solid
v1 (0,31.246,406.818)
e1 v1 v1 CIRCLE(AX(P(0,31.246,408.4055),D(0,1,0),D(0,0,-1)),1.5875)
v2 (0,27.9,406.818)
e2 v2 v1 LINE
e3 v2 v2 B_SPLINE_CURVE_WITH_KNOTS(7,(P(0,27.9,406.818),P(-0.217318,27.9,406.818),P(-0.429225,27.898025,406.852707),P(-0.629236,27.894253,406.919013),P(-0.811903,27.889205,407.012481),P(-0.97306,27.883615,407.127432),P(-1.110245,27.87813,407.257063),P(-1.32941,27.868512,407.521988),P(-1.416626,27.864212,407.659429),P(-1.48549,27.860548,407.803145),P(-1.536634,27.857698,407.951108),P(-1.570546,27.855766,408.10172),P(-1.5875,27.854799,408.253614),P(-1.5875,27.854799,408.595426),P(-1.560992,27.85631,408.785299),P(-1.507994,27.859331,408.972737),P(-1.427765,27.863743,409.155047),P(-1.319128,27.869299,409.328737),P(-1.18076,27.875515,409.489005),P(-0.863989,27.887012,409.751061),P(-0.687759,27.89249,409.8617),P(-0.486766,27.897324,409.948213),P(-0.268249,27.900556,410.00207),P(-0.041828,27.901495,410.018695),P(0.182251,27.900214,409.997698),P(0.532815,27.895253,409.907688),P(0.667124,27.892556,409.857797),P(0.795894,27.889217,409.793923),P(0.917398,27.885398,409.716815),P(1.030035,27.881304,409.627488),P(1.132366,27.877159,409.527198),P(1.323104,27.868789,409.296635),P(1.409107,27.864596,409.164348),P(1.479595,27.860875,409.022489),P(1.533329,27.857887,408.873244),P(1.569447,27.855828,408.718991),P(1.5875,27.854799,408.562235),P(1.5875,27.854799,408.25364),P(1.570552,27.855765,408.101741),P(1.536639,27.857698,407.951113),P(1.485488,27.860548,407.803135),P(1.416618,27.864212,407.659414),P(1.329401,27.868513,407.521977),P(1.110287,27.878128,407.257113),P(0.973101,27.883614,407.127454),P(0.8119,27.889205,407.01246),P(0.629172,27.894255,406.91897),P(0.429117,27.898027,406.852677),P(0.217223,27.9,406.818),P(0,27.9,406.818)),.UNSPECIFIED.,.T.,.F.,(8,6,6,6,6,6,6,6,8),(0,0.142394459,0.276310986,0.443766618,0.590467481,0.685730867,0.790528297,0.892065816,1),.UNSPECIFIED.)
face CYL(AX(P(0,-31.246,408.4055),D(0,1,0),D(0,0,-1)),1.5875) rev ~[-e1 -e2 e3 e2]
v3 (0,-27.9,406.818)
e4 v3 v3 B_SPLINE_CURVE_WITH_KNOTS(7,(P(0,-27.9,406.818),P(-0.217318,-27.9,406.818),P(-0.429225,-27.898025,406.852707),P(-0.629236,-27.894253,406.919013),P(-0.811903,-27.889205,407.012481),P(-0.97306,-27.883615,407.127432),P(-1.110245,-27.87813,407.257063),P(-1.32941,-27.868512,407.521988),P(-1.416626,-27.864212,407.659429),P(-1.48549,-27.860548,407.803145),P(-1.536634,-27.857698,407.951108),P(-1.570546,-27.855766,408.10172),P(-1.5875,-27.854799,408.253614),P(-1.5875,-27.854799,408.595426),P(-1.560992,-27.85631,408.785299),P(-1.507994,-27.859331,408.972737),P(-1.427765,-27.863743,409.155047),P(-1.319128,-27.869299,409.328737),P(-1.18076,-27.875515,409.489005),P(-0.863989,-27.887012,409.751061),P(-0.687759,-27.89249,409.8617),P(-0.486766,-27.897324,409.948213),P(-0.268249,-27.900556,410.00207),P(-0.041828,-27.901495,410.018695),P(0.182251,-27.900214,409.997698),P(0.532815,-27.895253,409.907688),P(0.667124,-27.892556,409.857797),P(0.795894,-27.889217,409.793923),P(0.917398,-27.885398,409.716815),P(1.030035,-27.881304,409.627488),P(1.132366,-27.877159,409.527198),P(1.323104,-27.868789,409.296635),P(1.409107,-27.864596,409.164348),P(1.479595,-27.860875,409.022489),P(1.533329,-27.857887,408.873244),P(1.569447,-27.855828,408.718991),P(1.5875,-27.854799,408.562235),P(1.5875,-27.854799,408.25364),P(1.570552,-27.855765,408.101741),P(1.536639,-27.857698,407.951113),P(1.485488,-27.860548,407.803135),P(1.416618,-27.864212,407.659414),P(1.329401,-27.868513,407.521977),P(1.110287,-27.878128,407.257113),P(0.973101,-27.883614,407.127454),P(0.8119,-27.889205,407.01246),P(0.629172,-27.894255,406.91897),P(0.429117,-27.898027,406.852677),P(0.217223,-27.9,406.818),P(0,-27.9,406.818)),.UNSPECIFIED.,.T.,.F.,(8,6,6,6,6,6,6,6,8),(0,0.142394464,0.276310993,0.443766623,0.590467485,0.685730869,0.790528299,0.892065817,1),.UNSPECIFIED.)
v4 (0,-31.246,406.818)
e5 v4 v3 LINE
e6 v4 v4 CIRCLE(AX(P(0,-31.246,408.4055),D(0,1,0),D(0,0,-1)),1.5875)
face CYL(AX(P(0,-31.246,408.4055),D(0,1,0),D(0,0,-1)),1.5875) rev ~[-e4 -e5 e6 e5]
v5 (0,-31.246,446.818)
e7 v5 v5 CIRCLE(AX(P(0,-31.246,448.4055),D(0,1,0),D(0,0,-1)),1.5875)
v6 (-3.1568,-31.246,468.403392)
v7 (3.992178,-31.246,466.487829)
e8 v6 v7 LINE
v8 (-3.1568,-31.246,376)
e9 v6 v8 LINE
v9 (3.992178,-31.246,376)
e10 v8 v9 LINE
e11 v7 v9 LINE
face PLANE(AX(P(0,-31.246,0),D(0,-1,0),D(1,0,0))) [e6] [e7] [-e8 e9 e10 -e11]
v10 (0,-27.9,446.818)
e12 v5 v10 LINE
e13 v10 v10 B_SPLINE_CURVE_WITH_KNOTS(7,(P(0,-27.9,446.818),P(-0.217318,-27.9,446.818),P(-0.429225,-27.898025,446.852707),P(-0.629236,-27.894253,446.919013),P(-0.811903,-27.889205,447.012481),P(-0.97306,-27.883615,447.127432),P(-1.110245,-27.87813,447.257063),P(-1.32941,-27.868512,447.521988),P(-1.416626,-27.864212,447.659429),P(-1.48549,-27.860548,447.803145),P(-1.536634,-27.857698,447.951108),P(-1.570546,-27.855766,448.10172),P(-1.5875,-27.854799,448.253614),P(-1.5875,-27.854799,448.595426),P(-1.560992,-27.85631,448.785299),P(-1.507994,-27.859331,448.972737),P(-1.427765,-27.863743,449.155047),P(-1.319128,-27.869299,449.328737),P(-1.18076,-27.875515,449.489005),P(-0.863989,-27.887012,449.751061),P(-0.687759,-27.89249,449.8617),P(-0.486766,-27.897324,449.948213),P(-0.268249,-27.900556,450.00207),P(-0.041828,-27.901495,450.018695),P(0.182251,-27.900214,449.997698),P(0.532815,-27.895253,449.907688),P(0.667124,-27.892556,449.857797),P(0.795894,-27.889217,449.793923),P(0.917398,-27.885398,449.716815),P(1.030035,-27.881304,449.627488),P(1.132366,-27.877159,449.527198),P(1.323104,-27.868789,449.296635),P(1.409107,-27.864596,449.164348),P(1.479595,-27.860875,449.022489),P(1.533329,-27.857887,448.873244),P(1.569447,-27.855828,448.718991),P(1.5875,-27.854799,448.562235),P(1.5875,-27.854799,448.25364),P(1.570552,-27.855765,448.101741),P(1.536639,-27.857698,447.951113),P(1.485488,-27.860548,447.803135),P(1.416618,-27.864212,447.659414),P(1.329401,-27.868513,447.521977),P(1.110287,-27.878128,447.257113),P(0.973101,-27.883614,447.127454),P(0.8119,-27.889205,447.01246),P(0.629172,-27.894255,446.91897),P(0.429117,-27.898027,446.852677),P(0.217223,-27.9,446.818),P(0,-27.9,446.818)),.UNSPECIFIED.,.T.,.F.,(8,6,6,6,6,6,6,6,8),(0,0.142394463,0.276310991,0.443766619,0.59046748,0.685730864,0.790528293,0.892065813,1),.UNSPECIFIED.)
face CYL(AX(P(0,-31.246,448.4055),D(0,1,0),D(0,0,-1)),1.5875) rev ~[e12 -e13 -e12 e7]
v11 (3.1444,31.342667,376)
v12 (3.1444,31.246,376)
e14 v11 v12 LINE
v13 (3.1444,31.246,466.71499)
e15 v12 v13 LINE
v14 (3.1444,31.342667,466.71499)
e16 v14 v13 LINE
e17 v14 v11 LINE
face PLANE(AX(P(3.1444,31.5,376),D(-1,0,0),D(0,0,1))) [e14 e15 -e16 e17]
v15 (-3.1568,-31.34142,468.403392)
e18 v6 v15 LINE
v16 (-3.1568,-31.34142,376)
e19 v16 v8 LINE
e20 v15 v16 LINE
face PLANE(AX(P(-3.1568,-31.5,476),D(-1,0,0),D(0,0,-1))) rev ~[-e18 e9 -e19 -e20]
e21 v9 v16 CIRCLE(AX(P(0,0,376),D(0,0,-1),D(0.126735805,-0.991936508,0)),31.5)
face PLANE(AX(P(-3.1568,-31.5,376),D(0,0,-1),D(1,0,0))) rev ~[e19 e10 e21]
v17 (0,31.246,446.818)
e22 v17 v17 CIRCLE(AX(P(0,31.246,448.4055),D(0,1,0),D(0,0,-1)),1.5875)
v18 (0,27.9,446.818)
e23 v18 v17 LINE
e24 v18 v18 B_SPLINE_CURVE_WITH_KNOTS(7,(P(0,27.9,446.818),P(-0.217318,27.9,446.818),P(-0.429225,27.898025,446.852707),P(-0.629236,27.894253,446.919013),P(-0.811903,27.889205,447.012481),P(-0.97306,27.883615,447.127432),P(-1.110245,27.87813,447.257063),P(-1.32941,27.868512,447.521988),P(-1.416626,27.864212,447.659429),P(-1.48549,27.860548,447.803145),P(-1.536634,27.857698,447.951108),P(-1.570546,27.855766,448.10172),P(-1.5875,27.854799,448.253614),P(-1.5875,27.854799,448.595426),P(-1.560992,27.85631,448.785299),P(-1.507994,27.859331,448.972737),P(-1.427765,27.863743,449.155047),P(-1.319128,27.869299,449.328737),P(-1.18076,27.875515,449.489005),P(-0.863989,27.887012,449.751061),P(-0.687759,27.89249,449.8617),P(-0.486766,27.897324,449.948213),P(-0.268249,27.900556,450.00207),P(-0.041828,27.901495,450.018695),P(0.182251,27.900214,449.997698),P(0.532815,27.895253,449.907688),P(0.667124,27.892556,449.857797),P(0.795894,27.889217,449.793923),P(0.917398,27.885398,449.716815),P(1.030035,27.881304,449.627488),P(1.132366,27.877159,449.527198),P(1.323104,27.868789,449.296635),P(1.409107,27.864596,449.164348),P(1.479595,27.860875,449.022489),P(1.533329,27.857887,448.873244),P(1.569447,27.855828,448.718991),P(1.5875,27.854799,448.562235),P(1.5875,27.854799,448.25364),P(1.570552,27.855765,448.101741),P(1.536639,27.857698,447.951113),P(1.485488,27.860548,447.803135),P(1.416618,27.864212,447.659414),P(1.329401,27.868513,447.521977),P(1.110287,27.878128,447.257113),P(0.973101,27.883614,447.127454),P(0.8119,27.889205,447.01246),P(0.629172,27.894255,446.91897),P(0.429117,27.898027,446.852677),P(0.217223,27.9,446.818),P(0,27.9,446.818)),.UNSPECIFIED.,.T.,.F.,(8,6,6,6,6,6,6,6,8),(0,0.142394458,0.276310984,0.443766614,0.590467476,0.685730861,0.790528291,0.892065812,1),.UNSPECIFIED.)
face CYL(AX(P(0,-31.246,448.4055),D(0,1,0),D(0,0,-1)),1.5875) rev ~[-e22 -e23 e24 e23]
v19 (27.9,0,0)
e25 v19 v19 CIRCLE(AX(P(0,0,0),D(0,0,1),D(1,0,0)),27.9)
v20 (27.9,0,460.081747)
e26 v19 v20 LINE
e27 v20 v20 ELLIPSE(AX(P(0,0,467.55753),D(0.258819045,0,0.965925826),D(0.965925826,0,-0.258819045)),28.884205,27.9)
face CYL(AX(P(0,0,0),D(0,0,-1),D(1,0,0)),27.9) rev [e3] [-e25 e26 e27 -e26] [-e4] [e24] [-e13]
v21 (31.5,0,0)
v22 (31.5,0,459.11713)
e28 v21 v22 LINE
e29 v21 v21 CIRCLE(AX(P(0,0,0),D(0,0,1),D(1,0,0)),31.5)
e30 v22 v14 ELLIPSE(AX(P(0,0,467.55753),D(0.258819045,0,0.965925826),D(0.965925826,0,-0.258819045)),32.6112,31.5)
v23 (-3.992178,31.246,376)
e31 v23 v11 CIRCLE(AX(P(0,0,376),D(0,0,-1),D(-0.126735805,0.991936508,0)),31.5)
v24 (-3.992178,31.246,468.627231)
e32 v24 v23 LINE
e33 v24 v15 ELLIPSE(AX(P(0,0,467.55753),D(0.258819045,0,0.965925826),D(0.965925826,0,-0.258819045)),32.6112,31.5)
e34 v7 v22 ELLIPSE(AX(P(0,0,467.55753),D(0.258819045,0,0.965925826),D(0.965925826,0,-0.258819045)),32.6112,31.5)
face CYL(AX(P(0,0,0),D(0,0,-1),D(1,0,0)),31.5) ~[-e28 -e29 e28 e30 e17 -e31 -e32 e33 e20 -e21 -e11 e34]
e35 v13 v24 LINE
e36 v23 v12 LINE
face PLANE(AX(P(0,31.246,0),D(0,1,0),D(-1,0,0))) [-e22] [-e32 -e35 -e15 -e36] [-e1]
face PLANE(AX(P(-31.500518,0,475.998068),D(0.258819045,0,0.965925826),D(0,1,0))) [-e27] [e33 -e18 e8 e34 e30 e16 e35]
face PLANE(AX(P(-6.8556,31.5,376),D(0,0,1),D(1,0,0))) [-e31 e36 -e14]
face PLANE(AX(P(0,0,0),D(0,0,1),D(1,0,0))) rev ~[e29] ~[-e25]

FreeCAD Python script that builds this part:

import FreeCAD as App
import Part
import Sketcher

V = App.Vector
Q = App.Units.Quantity

doc = App.newDocument("Part")
params = doc.addObject("Spreadsheet::Sheet", "Params")
for row, (alias, value) in enumerate([
    ("pad1_length", "476 mm"),
    ("sketch2_height", "4 in"),
    ("pocket1_length", "1 in"),
    ("sketch3_height", "3.937 in"),
    ("pocket2_length", "0.01 in"),
    ("sketch4_height", "3.937 in"),
    ("pocket3_length", "0.01 in"),
    ("sketch5_diameter", "0.125 in"),
    ("hole_diameter", "0.125 in"),
], start=1):
    params.set(f"A{row}", alias)
    params.set(f"B{row}", "=" + value)
    params.setAlias(f"B{row}", alias)

body = doc.addObject("PartDesign::Body", "Body")

# Sketch on XY plane
sketch1 = body.newObject("Sketcher::SketchObject", "Sketch")
sketch1.AttachmentSupport = (doc.getObject("XY_Plane"), [""])
sketch1.MapMode = "FlatFace"
sketch1.addGeometry(Part.Circle(V(0, 0, 0), V(0, 0, 1), 32), False)
sketch1.addGeometry(Part.Circle(V(0, 0, 0), V(0, 0, 1), 28), False)
sketch1.addConstraint(Sketcher.Constraint("Coincident", 0, 3, -1, 1))
sketch1.addConstraint(Sketcher.Constraint("Coincident", 1, 3, -1, 1))
sketch1.addConstraint(Sketcher.Constraint("Diameter", 0, 63.0))
sketch1.addConstraint(Sketcher.Constraint("Diameter", 1, 55.8))
pad1 = body.newObject("PartDesign::Pad", "Pad")
pad1.Profile = sketch1
pad1.setExpression("Length", "Params.pad1_length")

# Sketch on an angled plane
sketch2 = body.newObject("Sketcher::SketchObject", "Sketch001")
sketch2.Placement = App.Placement(V(-31.5, 0, 476), App.Rotation(V(0, 1, 0), V(-0.965925826, 0, 0.258819045), V(0.258819045, 0, 0.965925826), "ZXY"))
sketch2.addGeometry(Part.LineSegment(V(-32, 7, 0), V(-32, -95, 0)), False)
sketch2.addGeometry(Part.LineSegment(V(-32, -95, 0), V(64, -95, 0)), False)
sketch2.addGeometry(Part.LineSegment(V(64, -95, 0), V(64, 7, 0)), False)
sketch2.addGeometry(Part.LineSegment(V(64, 7, 0), V(-32, 7, 0)), False)
sketch2.addConstraint(Sketcher.Constraint("Coincident", 0, 2, 1, 1))
sketch2.addConstraint(Sketcher.Constraint("Coincident", 1, 2, 2, 1))
sketch2.addConstraint(Sketcher.Constraint("Coincident", 2, 2, 3, 1))
sketch2.addConstraint(Sketcher.Constraint("Coincident", 3, 2, 0, 1))
sketch2.addConstraint(Sketcher.Constraint("Vertical", 0))
sketch2.addConstraint(Sketcher.Constraint("Horizontal", 1))
sketch2.addConstraint(Sketcher.Constraint("Vertical", 2))
sketch2.addConstraint(Sketcher.Constraint("Horizontal", 3))
sketch2.addConstraint(Sketcher.Constraint("DistanceY", 0, 2, 0, 1, Q("4 in")))
sketch2.addConstraint(Sketcher.Constraint("DistanceX", 1, 1, 1, 2, Q("3.7811 in")))
sketch2.addConstraint(Sketcher.Constraint("DistanceY", 0, 2, -1, 1, Q("3.7381 in")))
sketch2.addConstraint(Sketcher.Constraint("DistanceX", 0, 2, -1, 1, 31.6137))
sketch2.setExpression("Constraints[8]", "Params.sketch2_height")
pocket1 = body.newObject("PartDesign::Pocket", "Pocket")
pocket1.Profile = sketch2
pocket1.setExpression("Length", "Params.pocket1_length")
pocket1.Reversed = True

# Sketch on XZ plane
sketch3 = body.newObject("Sketcher::SketchObject", "Sketch002")
sketch3.AttachmentSupport = (doc.getObject("XZ_Plane"), [""])
sketch3.MapMode = "FlatFace"
sketch3.AttachmentOffset = App.Placement(V(0, 0, -31.5), App.Rotation())
sketch3.addGeometry(Part.LineSegment(V(-7, 476, 0), V(3, 476, 0)), False)
sketch3.addGeometry(Part.LineSegment(V(3, 476, 0), V(3, 376, 0)), False)
sketch3.addGeometry(Part.LineSegment(V(3, 376, 0), V(-7, 376, 0)), False)
sketch3.addGeometry(Part.LineSegment(V(-7, 376, 0), V(-7, 476, 0)), False)
sketch3.addConstraint(Sketcher.Constraint("Coincident", 0, 2, 1, 1))
sketch3.addConstraint(Sketcher.Constraint("Coincident", 1, 2, 2, 1))
sketch3.addConstraint(Sketcher.Constraint("Coincident", 2, 2, 3, 1))
sketch3.addConstraint(Sketcher.Constraint("Coincident", 3, 2, 0, 1))
sketch3.addConstraint(Sketcher.Constraint("Horizontal", 0))
sketch3.addConstraint(Sketcher.Constraint("Vertical", 1))
sketch3.addConstraint(Sketcher.Constraint("Horizontal", 2))
sketch3.addConstraint(Sketcher.Constraint("Vertical", 3))
sketch3.addConstraint(Sketcher.Constraint("DistanceY", 1, 2, 1, 1, Q("3.937 in")))
sketch3.addConstraint(Sketcher.Constraint("DistanceX", 0, 1, 0, 2, Q("0.3937 in")))
sketch3.addConstraint(Sketcher.Constraint("DistanceY", -1, 1, 1, 2, 376.0))
sketch3.addConstraint(Sketcher.Constraint("DistanceX", -1, 1, 0, 2, Q("0.1238 in")))
sketch3.setExpression("Constraints[8]", "Params.sketch3_height")
pocket2 = body.newObject("PartDesign::Pocket", "Pocket001")
pocket2.Profile = sketch3
pocket2.setExpression("Length", "Params.pocket2_length")
pocket2.Reversed = True

# Sketch on XZ plane
sketch4 = body.newObject("Sketcher::SketchObject", "Sketch003")
sketch4.AttachmentSupport = (doc.getObject("XZ_Plane"), [""])
sketch4.MapMode = "FlatFace"
sketch4.AttachmentOffset = App.Placement(V(0, 0, 31.5), App.Rotation())
sketch4.addGeometry(Part.LineSegment(V(-3, 476, 0), V(-3, 376, 0)), False)
sketch4.addGeometry(Part.LineSegment(V(-3, 376, 0), V(7, 376, 0)), False)
sketch4.addGeometry(Part.LineSegment(V(7, 376, 0), V(7, 476, 0)), False)
sketch4.addGeometry(Part.LineSegment(V(7, 476, 0), V(-3, 476, 0)), False)
sketch4.addConstraint(Sketcher.Constraint("Coincident", 0, 2, 1, 1))
sketch4.addConstraint(Sketcher.Constraint("Coincident", 1, 2, 2, 1))
sketch4.addConstraint(Sketcher.Constraint("Coincident", 2, 2, 3, 1))
sketch4.addConstraint(Sketcher.Constraint("Coincident", 3, 2, 0, 1))
sketch4.addConstraint(Sketcher.Constraint("Vertical", 0))
sketch4.addConstraint(Sketcher.Constraint("Horizontal", 1))
sketch4.addConstraint(Sketcher.Constraint("Vertical", 2))
sketch4.addConstraint(Sketcher.Constraint("Horizontal", 3))
sketch4.addConstraint(Sketcher.Constraint("DistanceY", 0, 2, 0, 1, Q("3.937 in")))
sketch4.addConstraint(Sketcher.Constraint("DistanceX", 1, 1, 1, 2, Q("0.3937 in")))
sketch4.addConstraint(Sketcher.Constraint("DistanceY", -1, 1, 0, 2, 376.0))
sketch4.addConstraint(Sketcher.Constraint("DistanceX", 0, 2, -1, 1, 3.1568))
sketch4.setExpression("Constraints[8]", "Params.sketch4_height")
pocket3 = body.newObject("PartDesign::Pocket", "Pocket002")
pocket3.Profile = sketch4
pocket3.setExpression("Length", "Params.pocket3_length")

# Sketch on XZ plane
sketch5 = body.newObject("Sketcher::SketchObject", "Sketch004")
sketch5.AttachmentSupport = (doc.getObject("XZ_Plane"), [""])
sketch5.MapMode = "FlatFace"
sketch5.AttachmentOffset = App.Placement(V(0, 0, 31.246), App.Rotation())
sketch5.addGeometry(Part.Circle(V(0, 448.4, 0), V(0, 0, 1), 1.6), False)
sketch5.addGeometry(Part.Circle(V(0, 408.4, 0), V(0, 0, 1), 1.6), False)
sketch5.addConstraint(Sketcher.Constraint("Equal", 0, 1))
sketch5.addConstraint(Sketcher.Constraint("PointOnObject", 0, 3, -2))
sketch5.addConstraint(Sketcher.Constraint("PointOnObject", 1, 3, -2))
sketch5.addConstraint(Sketcher.Constraint("Diameter", 0, Q("0.125 in")))
sketch5.addConstraint(Sketcher.Constraint("DistanceY", 1, 3, 0, 3, Q("1.5748 in")))
sketch5.addConstraint(Sketcher.Constraint("DistanceY", -1, 1, 0, 3, 448.4055))
sketch5.setExpression("Constraints[3]", "Params.sketch5_diameter")
doc.recompute()
hole = body.newObject("PartDesign::Hole", "Hole")
hole.Profile = sketch5
hole.ThreadType = "None"
hole.setExpression("Diameter", "Params.hole_diameter")
hole.DepthType = "ThroughAll"

doc.recompute()
